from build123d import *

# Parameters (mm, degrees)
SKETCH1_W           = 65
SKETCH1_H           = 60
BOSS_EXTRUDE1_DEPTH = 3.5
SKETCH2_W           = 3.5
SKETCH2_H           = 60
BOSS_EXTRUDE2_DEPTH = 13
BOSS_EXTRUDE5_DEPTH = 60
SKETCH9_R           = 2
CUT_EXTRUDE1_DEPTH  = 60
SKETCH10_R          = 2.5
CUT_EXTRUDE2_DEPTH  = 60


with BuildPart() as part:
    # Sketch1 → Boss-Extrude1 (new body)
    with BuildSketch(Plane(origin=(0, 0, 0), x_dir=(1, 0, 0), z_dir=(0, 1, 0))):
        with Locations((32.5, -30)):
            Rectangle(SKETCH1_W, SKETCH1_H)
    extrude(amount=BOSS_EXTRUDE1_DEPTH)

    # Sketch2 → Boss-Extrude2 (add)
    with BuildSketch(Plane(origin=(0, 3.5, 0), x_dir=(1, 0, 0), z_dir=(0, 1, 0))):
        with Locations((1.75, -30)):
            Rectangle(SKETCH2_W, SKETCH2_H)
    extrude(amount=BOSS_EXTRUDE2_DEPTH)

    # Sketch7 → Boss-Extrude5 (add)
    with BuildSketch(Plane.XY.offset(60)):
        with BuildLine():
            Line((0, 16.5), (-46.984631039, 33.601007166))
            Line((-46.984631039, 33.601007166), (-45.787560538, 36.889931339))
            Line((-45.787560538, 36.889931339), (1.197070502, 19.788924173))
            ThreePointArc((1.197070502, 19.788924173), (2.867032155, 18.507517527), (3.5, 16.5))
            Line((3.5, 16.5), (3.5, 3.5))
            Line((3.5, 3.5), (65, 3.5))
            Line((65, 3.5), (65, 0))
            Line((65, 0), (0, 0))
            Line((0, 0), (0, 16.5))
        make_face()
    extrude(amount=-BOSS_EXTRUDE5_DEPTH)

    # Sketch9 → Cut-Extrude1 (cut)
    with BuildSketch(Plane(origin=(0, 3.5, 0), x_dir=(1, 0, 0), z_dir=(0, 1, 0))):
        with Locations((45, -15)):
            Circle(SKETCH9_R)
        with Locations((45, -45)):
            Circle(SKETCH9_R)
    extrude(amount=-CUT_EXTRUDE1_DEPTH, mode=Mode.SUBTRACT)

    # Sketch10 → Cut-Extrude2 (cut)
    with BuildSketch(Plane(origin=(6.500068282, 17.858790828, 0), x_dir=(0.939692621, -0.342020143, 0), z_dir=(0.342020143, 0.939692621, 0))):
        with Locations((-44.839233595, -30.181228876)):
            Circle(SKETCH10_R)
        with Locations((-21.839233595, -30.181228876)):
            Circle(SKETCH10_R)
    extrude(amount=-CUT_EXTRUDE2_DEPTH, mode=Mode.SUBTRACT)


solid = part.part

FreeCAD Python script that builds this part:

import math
import FreeCAD as App
import Part
import Sketcher

V = App.Vector
Q = App.Units.Quantity

doc = App.newDocument("Part")
body = doc.addObject("PartDesign::Body", "Body")

# Sketch on XZ plane
sketch1 = body.newObject("Sketcher::SketchObject", "Sketch")
sketch1.AttachmentSupport = (doc.getObject("XZ_Plane"), [""])
sketch1.MapMode = "FlatFace"
sketch1.addGeometry(Part.LineSegment(V(0, 0, 0), V(0, 60, 0)), False)
sketch1.addGeometry(Part.LineSegment(V(0, 60, 0), V(65, 60, 0)), False)
sketch1.addGeometry(Part.LineSegment(V(65, 60, 0), V(65, 0, 0)), False)
sketch1.addGeometry(Part.LineSegment(V(65, 0, 0), V(0, 0, 0)), False)
sketch1.addConstraint(Sketcher.Constraint("Coincident", 0, 2, 1, 1))
sketch1.addConstraint(Sketcher.Constraint("Coincident", 1, 2, 2, 1))
sketch1.addConstraint(Sketcher.Constraint("Coincident", 2, 2, 3, 1))
sketch1.addConstraint(Sketcher.Constraint("Coincident", 3, 2, 0, 1))
sketch1.addConstraint(Sketcher.Constraint("Vertical", 0))
sketch1.addConstraint(Sketcher.Constraint("Horizontal", 1))
sketch1.addConstraint(Sketcher.Constraint("Vertical", 2))
sketch1.addConstraint(Sketcher.Constraint("Horizontal", 3))
sketch1.addConstraint(Sketcher.Constraint("Coincident", 3, 2, -1, 1))
sketch1.addConstraint(Sketcher.Constraint("DistanceX", 1, 1, 1, 2, Q("65 mm")))
sketch1.addConstraint(Sketcher.Constraint("DistanceY", 0, 1, 0, 2, Q("60 mm")))
pad1 = body.newObject("PartDesign::Pad", "Pad")
pad1.Profile = sketch1
pad1.Length = 3.5
pad1.Reversed = True

# Sketch on XZ plane
sketch2 = body.newObject("Sketcher::SketchObject", "Sketch001")
sketch2.AttachmentSupport = (doc.getObject("XZ_Plane"), [""])
sketch2.MapMode = "FlatFace"
sketch2.AttachmentOffset = App.Placement(V(0, 0, -3.5), App.Rotation())
sketch2.addGeometry(Part.LineSegment(V(0, 0, 0), V(0, 60, 0)), False)
sketch2.addGeometry(Part.LineSegment(V(0, 60, 0), V(3.5, 60, 0)), False)
sketch2.addGeometry(Part.LineSegment(V(3.5, 60, 0), V(3.5, 0, 0)), False)
sketch2.addGeometry(Part.LineSegment(V(3.5, 0, 0), V(0, 0, 0)), False)
sketch2.addConstraint(Sketcher.Constraint("Coincident", 0, 2, 1, 1))
sketch2.addConstraint(Sketcher.Constraint("Coincident", 1, 2, 2, 1))
sketch2.addConstraint(Sketcher.Constraint("Coincident", 2, 2, 3, 1))
sketch2.addConstraint(Sketcher.Constraint("Coincident", 3, 2, 0, 1))
sketch2.addConstraint(Sketcher.Constraint("Vertical", 0))
sketch2.addConstraint(Sketcher.Constraint("Horizontal", 1))
sketch2.addConstraint(Sketcher.Constraint("Vertical", 2))
sketch2.addConstraint(Sketcher.Constraint("Horizontal", 3))
sketch2.addConstraint(Sketcher.Constraint("Coincident", 3, 2, -1, 1))
sketch2.addConstraint(Sketcher.Constraint("DistanceY", 0, 1, 0, 2, Q("60 mm")))
sketch2.addConstraint(Sketcher.Constraint("DistanceX", 1, 1, 1, 2, Q("3.5 mm")))
pad2 = body.newObject("PartDesign::Pad", "Pad001")
pad2.Profile = sketch2
pad2.Length = 13
pad2.Reversed = True

# Sketch on XY plane
sketch3 = body.newObject("Sketcher::SketchObject", "Sketch002")
sketch3.AttachmentSupport = (doc.getObject("XY_Plane"), [""])
sketch3.MapMode = "FlatFace"
sketch3.AttachmentOffset = App.Placement(V(0, 0, 60), App.Rotation())
sketch3.addGeometry(Part.LineSegment(V(-47, 33.6, 0), V(0, 16.5, 0)), False)
sketch3.addGeometry(Part.LineSegment(V(0, 16.5, 0), V(0, 0, 0)), False)
sketch3.addGeometry(Part.LineSegment(V(0, 0, 0), V(65, 0, 0)), False)
sketch3.addGeometry(Part.LineSegment(V(65, 0, 0), V(65, 3.5, 0)), False)
sketch3.addGeometry(Part.LineSegment(V(65, 3.5, 0), V(3.5, 3.5, 0)), False)
sketch3.addGeometry(Part.LineSegment(V(3.5, 3.5, 0), V(3.5, 16.5, 0)), False)
sketch3.addGeometry(Part.ArcOfCircle(Part.Circle(V(0, 16.5, 0), V(0, 0, 1), 3.5), math.radians(0), math.radians(70)), False)
sketch3.addGeometry(Part.LineSegment(V(1.2, 19.8, 0), V(-45.8, 36.9, 0)), False)
sketch3.addGeometry(Part.LineSegment(V(-45.8, 36.9, 0), V(-47, 33.6, 0)), False)
sketch3.addConstraint(Sketcher.Constraint("Coincident", 0, 2, 1, 1))
sketch3.addConstraint(Sketcher.Constraint("Coincident", 1, 2, 2, 1))
sketch3.addConstraint(Sketcher.Constraint("Coincident", 2, 2, 3, 1))
sketch3.addConstraint(Sketcher.Constraint("Coincident", 3, 2, 4, 1))
sketch3.addConstraint(Sketcher.Constraint("Coincident", 4, 2, 5, 1))
sketch3.addConstraint(Sketcher.Constraint("Tangent", 5, 2, 6, 1))
sketch3.addConstraint(Sketcher.Constraint("Tangent", 6, 2, 7, 1))
sketch3.addConstraint(Sketcher.Constraint("Coincident", 7, 2, 8, 1))
sketch3.addConstraint(Sketcher.Constraint("Coincident", 8, 2, 0, 1))
sketch3.addConstraint(Sketcher.Constraint("Vertical", 1))
sketch3.addConstraint(Sketcher.Constraint("Horizontal", 2))
sketch3.addConstraint(Sketcher.Constraint("Vertical", 3))
sketch3.addConstraint(Sketcher.Constraint("Horizontal", 4))
sketch3.addConstraint(Sketcher.Constraint("Vertical", 5))
sketch3.addConstraint(Sketcher.Constraint("Coincident", 1, 2, -1, 1))
sketch3.addConstraint(Sketcher.Constraint("Coincident", 0, 2, 6, 3))
sketch3.addConstraint(Sketcher.Constraint("Parallel", 0, 7))
sketch3.addConstraint(Sketcher.Constraint("Perpendicular", 7, 8))
sketch3.addConstraint(Sketcher.Constraint("Radius", 6, Q("3.5 mm")))
sketch3.addConstraint(Sketcher.Constraint("DistanceX", 2, 1, 2, 2, Q("65 mm")))
sketch3.addConstraint(Sketcher.Constraint("DistanceY", 5, 1, 5, 2, Q("13 mm")))
sketch3.addConstraint(Sketcher.Constraint("Angle", 0, Q("-20 deg")))
sketch3.addConstraint(Sketcher.Constraint("Distance", 0, Q("50 mm")))
sketch3.addConstraint(Sketcher.Constraint("DistanceY", 1, 2, 1, 1, Q("16.5 mm")))
pad3 = body.newObject("PartDesign::Pad", "Pad002")
pad3.Profile = sketch3
pad3.Length = 60
pad3.Reversed = True

# Sketch on XZ plane
sketch4 = body.newObject("Sketcher::SketchObject", "Sketch003")
sketch4.AttachmentSupport = (doc.getObject("XZ_Plane"), [""])
sketch4.MapMode = "FlatFace"
sketch4.AttachmentOffset = App.Placement(V(0, 0, -3.5), App.Rotation())
sketch4.addGeometry(Part.Circle(V(45, 15, 0), V(0, 0, 1), 2), False)
sketch4.addGeometry(Part.Circle(V(45, 45, 0), V(0, 0, 1), 2), False)
sketch4.addConstraint(Sketcher.Constraint("Equal", 0, 1))
sketch4.addConstraint(Sketcher.Constraint("Vertical", 0, 3, 1, 3))
sketch4.addConstraint(Sketcher.Constraint("Diameter", 0, Q("4 mm")))
sketch4.addConstraint(Sketcher.Constraint("DistanceX", -1, 1, 0, 3, Q("45 mm")))
sketch4.addConstraint(Sketcher.Constraint("DistanceY", -1, 1, 0, 3, Q("15 mm")))
sketch4.addConstraint(Sketcher.Constraint("DistanceY", -1, 1, 1, 3, Q("45 mm")))
pocket1 = body.newObject("PartDesign::Pocket", "Pocket")
pocket1.Profile = sketch4
pocket1.Length = 60
pocket1.Reversed = True

# Sketch on an angled plane
sketch5 = body.newObject("Sketcher::SketchObject", "Sketch004")
sketch5.Placement = App.Placement(V(6.500068, 17.858791, 0), App.Rotation(V(0.939692621, -0.342020143, 0), V(0, 0, -1), V(0.342020143, 0.939692621, 0), "ZXY"))
sketch5.addGeometry(Part.Circle(V(-44.8, -30.2, 0), V(0, 0, 1), 2.5), False)
sketch5.addGeometry(Part.Circle(V(-21.8, -30.2, 0), V(0, 0, 1), 2.5), False)
sketch5.addConstraint(Sketcher.Constraint("Equal", 0, 1))
sketch5.addConstraint(Sketcher.Constraint("Horizontal", 0, 3, 1, 3))
sketch5.addConstraint(Sketcher.Constraint("Diameter", 0, Q("5 mm")))
sketch5.addConstraint(Sketcher.Constraint("DistanceX", 0, 3, 1, 3, Q("23 mm")))
sketch5.addConstraint(Sketcher.Constraint("DistanceY", 0, 3, -1, 1, Q("30.181229 mm")))
sketch5.addConstraint(Sketcher.Constraint("DistanceX", 0, 3, -1, 1, Q("44.839234 mm")))
pocket2 = body.newObject("PartDesign::Pocket", "Pocket001")
pocket2.Profile = sketch5
pocket2.Length = 60

doc.recompute()
